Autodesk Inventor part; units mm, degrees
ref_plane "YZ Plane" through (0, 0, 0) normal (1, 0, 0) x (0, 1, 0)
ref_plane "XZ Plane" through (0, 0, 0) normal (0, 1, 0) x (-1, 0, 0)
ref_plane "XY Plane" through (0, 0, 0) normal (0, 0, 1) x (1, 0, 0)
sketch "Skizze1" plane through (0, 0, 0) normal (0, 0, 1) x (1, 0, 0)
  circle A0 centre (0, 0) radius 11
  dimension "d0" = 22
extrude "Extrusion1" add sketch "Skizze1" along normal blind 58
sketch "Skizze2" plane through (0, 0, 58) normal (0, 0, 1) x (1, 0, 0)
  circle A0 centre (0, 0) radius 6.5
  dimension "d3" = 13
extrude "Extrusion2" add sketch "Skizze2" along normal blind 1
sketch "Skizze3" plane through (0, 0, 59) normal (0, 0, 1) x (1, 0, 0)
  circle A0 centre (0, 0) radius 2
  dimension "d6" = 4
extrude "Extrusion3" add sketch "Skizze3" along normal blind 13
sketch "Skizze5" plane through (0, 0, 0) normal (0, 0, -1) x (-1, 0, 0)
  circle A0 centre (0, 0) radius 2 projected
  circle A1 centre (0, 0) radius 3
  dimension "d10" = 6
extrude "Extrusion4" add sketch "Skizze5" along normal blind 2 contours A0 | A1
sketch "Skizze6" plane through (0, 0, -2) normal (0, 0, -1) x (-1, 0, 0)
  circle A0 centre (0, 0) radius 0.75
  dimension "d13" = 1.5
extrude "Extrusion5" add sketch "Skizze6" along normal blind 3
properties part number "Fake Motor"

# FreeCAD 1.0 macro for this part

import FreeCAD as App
import Part
import Sketcher
Q = App.Units.Quantity

doc = App.newDocument("Part")
body = doc.addObject("PartDesign::Body", "Body")

# Sketch on XY plane
sketch1 = body.newObject("Sketcher::SketchObject", "Sketch")
sketch1.AttachmentSupport = (doc.getObject("XY_Plane"), [""])
sketch1.MapMode = "FlatFace"
sketch1.addGeometry(Part.Circle(App.Vector(0, 0, 0), App.Vector(0, 0, 1), 11), False)
sketch1.addConstraint([
    Sketcher.Constraint("Coincident", 0, 3, -1, 1),
    Sketcher.Constraint("Diameter", 0, Q("22 mm")),
])
pad1 = body.newObject("PartDesign::Pad", "Pad")
pad1.Profile = sketch1
pad1.Length = 58

# Sketch on XY plane
sketch2 = body.newObject("Sketcher::SketchObject", "Sketch001")
sketch2.AttachmentSupport = (doc.getObject("XY_Plane"), [""])
sketch2.MapMode = "FlatFace"
sketch2.AttachmentOffset = App.Placement(App.Vector(0, 0, 58), App.Rotation())
sketch2.addGeometry(Part.Circle(App.Vector(0, 0, 0), App.Vector(0, 0, 1), 6), False)
sketch2.addConstraint([
    Sketcher.Constraint("Coincident", 0, 3, -1, 1),
    Sketcher.Constraint("Diameter", 0, Q("13 mm")),
])
pad2 = body.newObject("PartDesign::Pad", "Pad001")
pad2.Profile = sketch2
pad2.Length = 1

# Sketch on XY plane
sketch3 = body.newObject("Sketcher::SketchObject", "Sketch002")
sketch3.AttachmentSupport = (doc.getObject("XY_Plane"), [""])
sketch3.MapMode = "FlatFace"
sketch3.AttachmentOffset = App.Placement(App.Vector(0, 0, 59), App.Rotation())
sketch3.addGeometry(Part.Circle(App.Vector(0, 0, 0), App.Vector(0, 0, 1), 2), False)
sketch3.addConstraint([
    Sketcher.Constraint("Coincident", 0, 3, -1, 1),
    Sketcher.Constraint("Diameter", 0, Q("4 mm")),
])
pad3 = body.newObject("PartDesign::Pad", "Pad002")
pad3.Profile = sketch3
pad3.Length = 13

# Sketch on XY plane
sketch4 = body.newObject("Sketcher::SketchObject", "Sketch003")
sketch4.AttachmentSupport = (doc.getObject("XY_Plane"), [""])
sketch4.MapMode = "FlatFace"
sketch4.addGeometry(Part.Circle(App.Vector(0, 0, 0), App.Vector(0, 0, 1), 3), False)
sketch4.addConstraint([
    Sketcher.Constraint("Coincident", 0, 3, -1, 1),
    Sketcher.Constraint("Diameter", 0, Q("6 mm")),
])
pad4 = body.newObject("PartDesign::Pad", "Pad003")
pad4.Profile = sketch4
pad4.Length = 2
pad4.Reversed = True

# Sketch on XY plane
sketch5 = body.newObject("Sketcher::SketchObject", "Sketch004")
sketch5.AttachmentSupport = (doc.getObject("XY_Plane"), [""])
sketch5.MapMode = "FlatFace"
sketch5.AttachmentOffset = App.Placement(App.Vector(0, 0, -2), App.Rotation())
sketch5.addGeometry(Part.Circle(App.Vector(0, 0, 0), App.Vector(0, 0, 1), 0.8), False)
sketch5.addConstraint([
    Sketcher.Constraint("Coincident", 0, 3, -1, 1),
    Sketcher.Constraint("Diameter", 0, Q("1.5 mm")),
])
pad5 = body.newObject("PartDesign::Pad", "Pad004")
pad5.Profile = sketch5
pad5.Length = 3
pad5.Reversed = True

doc.recompute()
